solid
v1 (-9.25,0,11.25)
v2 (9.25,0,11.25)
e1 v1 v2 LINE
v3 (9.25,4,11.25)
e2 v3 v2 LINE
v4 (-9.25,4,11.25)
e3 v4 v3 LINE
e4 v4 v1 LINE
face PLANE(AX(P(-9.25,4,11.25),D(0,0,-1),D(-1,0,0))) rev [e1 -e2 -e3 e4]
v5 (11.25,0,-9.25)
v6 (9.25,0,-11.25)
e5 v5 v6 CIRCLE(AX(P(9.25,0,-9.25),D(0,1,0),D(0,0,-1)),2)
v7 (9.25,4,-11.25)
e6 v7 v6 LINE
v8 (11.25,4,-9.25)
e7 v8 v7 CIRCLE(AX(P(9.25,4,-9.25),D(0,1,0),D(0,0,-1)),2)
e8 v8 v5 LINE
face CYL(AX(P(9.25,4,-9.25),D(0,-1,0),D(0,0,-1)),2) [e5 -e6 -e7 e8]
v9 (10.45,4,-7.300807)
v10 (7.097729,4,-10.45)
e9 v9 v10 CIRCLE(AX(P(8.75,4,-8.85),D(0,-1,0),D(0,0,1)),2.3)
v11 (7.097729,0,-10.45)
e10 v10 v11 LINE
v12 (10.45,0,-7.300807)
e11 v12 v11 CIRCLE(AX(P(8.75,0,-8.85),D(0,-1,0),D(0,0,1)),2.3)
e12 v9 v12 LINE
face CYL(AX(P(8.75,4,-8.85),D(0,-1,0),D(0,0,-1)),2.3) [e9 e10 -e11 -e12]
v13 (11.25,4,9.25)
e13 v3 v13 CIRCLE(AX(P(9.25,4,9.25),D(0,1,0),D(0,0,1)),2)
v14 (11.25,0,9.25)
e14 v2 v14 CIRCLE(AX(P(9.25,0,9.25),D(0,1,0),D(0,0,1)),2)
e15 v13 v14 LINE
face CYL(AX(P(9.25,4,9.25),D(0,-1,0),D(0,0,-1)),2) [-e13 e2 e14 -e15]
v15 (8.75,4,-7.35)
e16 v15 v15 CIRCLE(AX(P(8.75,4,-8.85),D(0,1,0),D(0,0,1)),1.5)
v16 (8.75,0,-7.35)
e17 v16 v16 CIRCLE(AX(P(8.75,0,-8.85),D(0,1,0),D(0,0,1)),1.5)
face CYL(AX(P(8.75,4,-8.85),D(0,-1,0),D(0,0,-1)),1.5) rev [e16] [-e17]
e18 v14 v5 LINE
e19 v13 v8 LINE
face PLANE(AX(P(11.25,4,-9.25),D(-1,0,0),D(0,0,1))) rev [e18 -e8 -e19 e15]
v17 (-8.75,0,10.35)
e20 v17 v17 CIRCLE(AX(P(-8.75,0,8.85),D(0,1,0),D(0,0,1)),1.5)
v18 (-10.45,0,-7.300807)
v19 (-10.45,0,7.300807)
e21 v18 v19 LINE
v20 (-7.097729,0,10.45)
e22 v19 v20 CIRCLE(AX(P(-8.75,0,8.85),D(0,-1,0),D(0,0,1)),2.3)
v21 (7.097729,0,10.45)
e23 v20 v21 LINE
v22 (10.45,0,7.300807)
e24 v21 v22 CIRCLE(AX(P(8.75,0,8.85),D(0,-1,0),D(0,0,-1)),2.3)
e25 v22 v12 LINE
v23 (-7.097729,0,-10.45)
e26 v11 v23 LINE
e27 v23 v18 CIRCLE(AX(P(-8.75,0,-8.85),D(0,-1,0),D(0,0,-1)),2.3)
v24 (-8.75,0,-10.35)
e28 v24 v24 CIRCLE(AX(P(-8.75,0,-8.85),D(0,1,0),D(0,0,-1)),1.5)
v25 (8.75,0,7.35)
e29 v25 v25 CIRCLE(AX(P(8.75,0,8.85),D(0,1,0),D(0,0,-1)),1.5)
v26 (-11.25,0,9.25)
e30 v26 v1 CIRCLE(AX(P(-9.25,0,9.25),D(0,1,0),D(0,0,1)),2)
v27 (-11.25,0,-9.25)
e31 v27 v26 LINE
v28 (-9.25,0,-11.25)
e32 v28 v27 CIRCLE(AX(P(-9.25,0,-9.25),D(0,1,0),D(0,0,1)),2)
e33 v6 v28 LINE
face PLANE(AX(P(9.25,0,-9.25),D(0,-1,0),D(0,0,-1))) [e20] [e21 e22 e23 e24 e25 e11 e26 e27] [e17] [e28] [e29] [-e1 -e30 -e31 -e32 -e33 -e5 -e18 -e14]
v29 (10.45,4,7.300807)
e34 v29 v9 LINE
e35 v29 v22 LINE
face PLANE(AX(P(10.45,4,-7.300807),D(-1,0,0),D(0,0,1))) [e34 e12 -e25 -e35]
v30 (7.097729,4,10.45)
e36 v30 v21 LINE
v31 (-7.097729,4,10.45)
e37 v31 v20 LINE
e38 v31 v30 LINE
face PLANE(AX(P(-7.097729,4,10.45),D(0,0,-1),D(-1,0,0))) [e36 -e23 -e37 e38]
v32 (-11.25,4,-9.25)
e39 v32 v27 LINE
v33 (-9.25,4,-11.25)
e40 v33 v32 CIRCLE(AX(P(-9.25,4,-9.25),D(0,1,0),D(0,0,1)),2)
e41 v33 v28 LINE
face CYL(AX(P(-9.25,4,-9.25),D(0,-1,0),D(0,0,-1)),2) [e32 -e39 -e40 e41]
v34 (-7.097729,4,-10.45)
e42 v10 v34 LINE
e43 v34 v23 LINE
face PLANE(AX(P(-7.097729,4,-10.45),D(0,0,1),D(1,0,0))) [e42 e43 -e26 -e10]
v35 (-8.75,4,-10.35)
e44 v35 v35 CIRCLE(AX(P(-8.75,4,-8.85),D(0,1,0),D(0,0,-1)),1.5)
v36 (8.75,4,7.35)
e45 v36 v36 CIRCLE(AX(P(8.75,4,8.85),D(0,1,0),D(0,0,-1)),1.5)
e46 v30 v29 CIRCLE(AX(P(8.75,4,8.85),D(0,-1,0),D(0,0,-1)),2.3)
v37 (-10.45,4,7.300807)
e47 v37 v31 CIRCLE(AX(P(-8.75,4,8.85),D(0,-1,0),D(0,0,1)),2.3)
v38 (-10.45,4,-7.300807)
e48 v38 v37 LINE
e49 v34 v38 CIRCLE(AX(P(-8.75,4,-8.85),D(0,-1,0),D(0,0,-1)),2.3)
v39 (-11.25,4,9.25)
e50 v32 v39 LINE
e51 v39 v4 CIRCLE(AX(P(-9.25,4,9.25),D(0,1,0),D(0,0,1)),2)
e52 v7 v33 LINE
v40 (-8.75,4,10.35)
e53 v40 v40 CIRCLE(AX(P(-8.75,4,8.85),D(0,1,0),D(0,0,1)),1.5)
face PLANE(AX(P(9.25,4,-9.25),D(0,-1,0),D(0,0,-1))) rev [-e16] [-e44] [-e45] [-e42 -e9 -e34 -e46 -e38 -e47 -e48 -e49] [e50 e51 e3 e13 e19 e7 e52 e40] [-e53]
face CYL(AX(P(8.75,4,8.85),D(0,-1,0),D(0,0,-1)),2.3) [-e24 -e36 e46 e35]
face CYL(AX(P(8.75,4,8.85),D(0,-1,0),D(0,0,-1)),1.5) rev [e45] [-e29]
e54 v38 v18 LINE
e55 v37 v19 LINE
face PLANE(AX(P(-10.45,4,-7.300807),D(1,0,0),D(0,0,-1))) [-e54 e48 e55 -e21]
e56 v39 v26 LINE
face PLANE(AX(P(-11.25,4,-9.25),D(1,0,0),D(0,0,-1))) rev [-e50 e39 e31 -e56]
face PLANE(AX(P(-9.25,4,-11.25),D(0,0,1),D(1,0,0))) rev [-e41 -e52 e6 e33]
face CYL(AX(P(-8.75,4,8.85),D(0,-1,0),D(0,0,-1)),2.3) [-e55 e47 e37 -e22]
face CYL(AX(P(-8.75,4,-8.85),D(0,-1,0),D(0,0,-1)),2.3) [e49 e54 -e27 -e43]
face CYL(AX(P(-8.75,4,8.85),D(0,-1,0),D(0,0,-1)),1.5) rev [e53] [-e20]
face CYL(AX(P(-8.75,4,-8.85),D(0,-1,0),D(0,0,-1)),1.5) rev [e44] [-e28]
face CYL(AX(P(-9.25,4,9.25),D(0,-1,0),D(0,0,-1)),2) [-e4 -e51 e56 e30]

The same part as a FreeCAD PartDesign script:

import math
import FreeCAD as App
import Part
import Sketcher
Q = App.Units.Quantity

doc = App.newDocument("Part")
params = doc.addObject("Spreadsheet::Sheet", "Params")
for row, (alias, value) in enumerate([
    ("sketch1_diameter", "3 mm"),
    ("sketch1_radius", "2 mm"),
    ("sketch1_radius2", "2.3 mm"),
    ("sketch1_width", "18.5 mm"),
    ("pad1_length", "4 mm"),
], start=1):
    params.set(f"A{row}", alias)
    params.set(f"B{row}", "=" + value)
    params.setAlias(f"B{row}", alias)

body = doc.addObject("PartDesign::Body", "Body")

sketch1 = body.newObject("Sketcher::SketchObject", "Sketch")
sketch1.AttachmentSupport = (doc.getObject("XZ_Plane"), [""])
sketch1.MapMode = "FlatFace"
sketch1.addGeometry([
    Part.LineSegment(App.Vector(9.25, -11.25, 0), App.Vector(-9.25, -11.25, 0)),
    Part.ArcOfCircle(Part.Circle(App.Vector(-9.25, -9.25, 0), App.Vector(0, 0, 1), 2), math.radians(-180), math.radians(-90)),
    Part.LineSegment(App.Vector(-11.25, -9.25, 0), App.Vector(-11.25, 9.25, 0)),
    Part.ArcOfCircle(Part.Circle(App.Vector(-9.25, 9.25, 0), App.Vector(0, 0, 1), 2), math.radians(90), math.radians(180)),
    Part.LineSegment(App.Vector(-9.25, 11.25, 0), App.Vector(9.25, 11.25, 0)),
    Part.ArcOfCircle(Part.Circle(App.Vector(9.25, 9.25, 0), App.Vector(0, 0, 1), 2), math.radians(0), math.radians(90)),
    Part.LineSegment(App.Vector(11.25, 9.25, 0), App.Vector(11.25, -9.25, 0)),
    Part.ArcOfCircle(Part.Circle(App.Vector(9.25, -9.25, 0), App.Vector(0, 0, 1), 2), math.radians(-90), math.radians(0)),
    Part.Circle(App.Vector(8.75, 8.85, 0), App.Vector(0, 0, 1), 1.5),
    Part.LineSegment(App.Vector(-7.097729, -10.45, 0), App.Vector(7.097729, -10.45, 0)),
    Part.ArcOfCircle(Part.Circle(App.Vector(8.75, -8.85, 0), App.Vector(0, 0, 1), 2.3), math.radians(42.342605), math.radians(224.07921)),
    Part.LineSegment(App.Vector(10.45, -7.300807, 0), App.Vector(10.45, 7.300807, 0)),
    Part.ArcOfCircle(Part.Circle(App.Vector(8.75, 8.85, 0), App.Vector(0, 0, 1), 2.3), math.radians(135.92079), math.radians(317.657395)),
    Part.LineSegment(App.Vector(7.097729, 10.45, 0), App.Vector(-7.097729, 10.45, 0)),
    Part.ArcOfCircle(Part.Circle(App.Vector(-8.75, 8.85, 0), App.Vector(0, 0, 1), 2.3), math.radians(-137.657395), math.radians(44.07921)),
    Part.LineSegment(App.Vector(-10.45, 7.300807, 0), App.Vector(-10.45, -7.300807, 0)),
    Part.ArcOfCircle(Part.Circle(App.Vector(-8.75, -8.85, 0), App.Vector(0, 0, 1), 2.3), math.radians(-44.07921), math.radians(137.657395)),
    Part.Circle(App.Vector(-8.75, 8.85, 0), App.Vector(0, 0, 1), 1.5),
    Part.Circle(App.Vector(8.75, -8.85, 0), App.Vector(0, 0, 1), 1.5),
    Part.Circle(App.Vector(-8.75, -8.85, 0), App.Vector(0, 0, 1), 1.5),
], False)
sketch1.addConstraint([
    Sketcher.Constraint("Tangent", 0, 2, 1, 2),
    Sketcher.Constraint("Tangent", 1, 1, 2, 1),
    Sketcher.Constraint("Tangent", 2, 2, 3, 2),
    Sketcher.Constraint("Tangent", 3, 1, 4, 1),
    Sketcher.Constraint("Tangent", 4, 2, 5, 2),
    Sketcher.Constraint("Tangent", 5, 1, 6, 1),
    Sketcher.Constraint("Tangent", 6, 2, 7, 2),
    Sketcher.Constraint("Tangent", 7, 1, 0, 1),
    Sketcher.Constraint("Coincident", 9, 2, 10, 2),
    Sketcher.Constraint("Coincident", 10, 1, 11, 1),
    Sketcher.Constraint("Coincident", 11, 2, 12, 2),
    Sketcher.Constraint("Coincident", 12, 1, 13, 1),
    Sketcher.Constraint("Coincident", 13, 2, 14, 2),
    Sketcher.Constraint("Coincident", 14, 1, 15, 1),
    Sketcher.Constraint("Coincident", 15, 2, 16, 2),
    Sketcher.Constraint("Coincident", 16, 1, 9, 1),
    Sketcher.Constraint("Horizontal", 0),
    Sketcher.Constraint("Vertical", 2),
    Sketcher.Constraint("Horizontal", 4),
    Sketcher.Constraint("Vertical", 6),
    Sketcher.Constraint("Horizontal", 9),
    Sketcher.Constraint("Vertical", 11),
    Sketcher.Constraint("Horizontal", 13),
    Sketcher.Constraint("Vertical", 15),
    Sketcher.Constraint("Coincident", 12, 3, 8, 3),
    Sketcher.Constraint("Coincident", 17, 3, 14, 3),
    Sketcher.Constraint("Coincident", 18, 3, 10, 3),
    Sketcher.Constraint("Coincident", 19, 3, 16, 3),
    Sketcher.Constraint("Equal", 1, 3),
    Sketcher.Constraint("Equal", 3, 5),
    Sketcher.Constraint("Equal", 5, 7),
    Sketcher.Constraint("Equal", 10, 12),
    Sketcher.Constraint("Equal", 12, 14),
    Sketcher.Constraint("Equal", 14, 16),
    Sketcher.Constraint("Equal", 8, 17),
    Sketcher.Constraint("Equal", 17, 18),
    Sketcher.Constraint("Equal", 18, 19),
    Sketcher.Constraint("Symmetric", 1, 3, 5, 3, -1, 1),
    Sketcher.Constraint("Symmetric", 10, 3, 14, 3, -1, 1),
    Sketcher.Constraint("Symmetric", 8, 3, 16, 3, -1, 1),
    Sketcher.Constraint("Symmetric", 8, 3, 14, 3, -2),
    Sketcher.Constraint("Horizontal", 11, 2, 14, 1),
    Sketcher.Constraint("Vertical", 9, 2, 12, 1),
    Sketcher.Constraint("Equal", 4, 2),
    Sketcher.Constraint("Diameter", 8, Q("3 mm")),
    Sketcher.Constraint("Radius", 1, Q("2 mm")),
    Sketcher.Constraint("Radius", 10, Q("2.3 mm")),
    Sketcher.Constraint("DistanceX", 0, 2, 0, 1, Q("18.5 mm")),
    Sketcher.Constraint("DistanceX", 3, 3, 8, 3, Q("18 mm")),
    Sketcher.Constraint("DistanceY", 8, 3, 5, 3, Q("0.4 mm")),
    Sketcher.Constraint("DistanceY", 7, 1, 9, 2, Q("0.8 mm")),
    Sketcher.Constraint("DistanceX", 10, 1, 6, 2, Q("0.8 mm")),
])
sketch1.setExpression("Constraints[44]", "Params.sketch1_diameter")
sketch1.setExpression("Constraints[45]", "Params.sketch1_radius")
sketch1.setExpression("Constraints[46]", "Params.sketch1_radius2")
sketch1.setExpression("Constraints[47]", "Params.sketch1_width")
pad1 = body.newObject("PartDesign::Pad", "Pad")
pad1.Profile = sketch1
pad1.setExpression("Length", "Params.pad1_length")
pad1.Reversed = True

doc.recompute()
